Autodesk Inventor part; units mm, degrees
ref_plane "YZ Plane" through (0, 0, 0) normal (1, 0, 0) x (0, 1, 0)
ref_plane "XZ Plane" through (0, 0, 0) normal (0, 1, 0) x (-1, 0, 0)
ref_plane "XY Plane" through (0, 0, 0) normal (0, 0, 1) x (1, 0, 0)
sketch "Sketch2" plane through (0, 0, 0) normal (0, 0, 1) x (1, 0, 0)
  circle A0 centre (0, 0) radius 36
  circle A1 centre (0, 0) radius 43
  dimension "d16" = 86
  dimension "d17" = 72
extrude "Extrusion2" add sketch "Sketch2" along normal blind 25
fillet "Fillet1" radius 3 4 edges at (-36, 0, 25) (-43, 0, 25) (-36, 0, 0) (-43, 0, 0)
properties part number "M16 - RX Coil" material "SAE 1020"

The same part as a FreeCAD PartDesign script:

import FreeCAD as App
import Part
import Sketcher
Q = App.Units.Quantity


def edges_at(feature, points):
    """Names of the edges that pass closest to the given points."""
    edges = feature.Shape.Edges
    near = lambda p: min(range(len(edges)), key=lambda i: edges[i].distToShape(Part.Vertex(*p))[0])
    return sorted({f"Edge{near(p) + 1}" for p in points})

doc = App.newDocument("Part")
body = doc.addObject("PartDesign::Body", "Body")

# Sketch on XY plane
sketch1 = doc.addObject("Sketcher::SketchObject", "Sketch")
body.addObject(sketch1)
sketch1.AttachmentSupport = (doc.XY_Plane, [""])
sketch1.MapMode = "FlatFace"
sketch1.addGeometry(Part.Circle(App.Vector(0, 0, 0), App.Vector(0, 0, 1), 43), False)
sketch1.addGeometry(Part.Circle(App.Vector(0, 0, 0), App.Vector(0, 0, 1), 36), False)
sketch1.addConstraint(Sketcher.Constraint("Coincident", 0, 3, -1, 1))
sketch1.addConstraint(Sketcher.Constraint("Coincident", 1, 3, -1, 1))
sketch1.addConstraint(Sketcher.Constraint("Diameter", 0, Q("86 mm")))
sketch1.addConstraint(Sketcher.Constraint("Diameter", 1, Q("72 mm")))
pad1 = doc.addObject("PartDesign::Pad", "Pad")
body.addObject(pad1)
pad1.Profile = sketch1
pad1.Length = 25
doc.recompute()

fillet = doc.addObject("PartDesign::Fillet", "Fillet")
body.addObject(fillet)
fillet.Base = (pad1, edges_at(pad1, [
    (-36, 0, 25),
    (-43, 0, 25),
    (-36, 0, 0),
    (-43, 0, 0),
]))
fillet.Radius = 3

doc.recompute()
